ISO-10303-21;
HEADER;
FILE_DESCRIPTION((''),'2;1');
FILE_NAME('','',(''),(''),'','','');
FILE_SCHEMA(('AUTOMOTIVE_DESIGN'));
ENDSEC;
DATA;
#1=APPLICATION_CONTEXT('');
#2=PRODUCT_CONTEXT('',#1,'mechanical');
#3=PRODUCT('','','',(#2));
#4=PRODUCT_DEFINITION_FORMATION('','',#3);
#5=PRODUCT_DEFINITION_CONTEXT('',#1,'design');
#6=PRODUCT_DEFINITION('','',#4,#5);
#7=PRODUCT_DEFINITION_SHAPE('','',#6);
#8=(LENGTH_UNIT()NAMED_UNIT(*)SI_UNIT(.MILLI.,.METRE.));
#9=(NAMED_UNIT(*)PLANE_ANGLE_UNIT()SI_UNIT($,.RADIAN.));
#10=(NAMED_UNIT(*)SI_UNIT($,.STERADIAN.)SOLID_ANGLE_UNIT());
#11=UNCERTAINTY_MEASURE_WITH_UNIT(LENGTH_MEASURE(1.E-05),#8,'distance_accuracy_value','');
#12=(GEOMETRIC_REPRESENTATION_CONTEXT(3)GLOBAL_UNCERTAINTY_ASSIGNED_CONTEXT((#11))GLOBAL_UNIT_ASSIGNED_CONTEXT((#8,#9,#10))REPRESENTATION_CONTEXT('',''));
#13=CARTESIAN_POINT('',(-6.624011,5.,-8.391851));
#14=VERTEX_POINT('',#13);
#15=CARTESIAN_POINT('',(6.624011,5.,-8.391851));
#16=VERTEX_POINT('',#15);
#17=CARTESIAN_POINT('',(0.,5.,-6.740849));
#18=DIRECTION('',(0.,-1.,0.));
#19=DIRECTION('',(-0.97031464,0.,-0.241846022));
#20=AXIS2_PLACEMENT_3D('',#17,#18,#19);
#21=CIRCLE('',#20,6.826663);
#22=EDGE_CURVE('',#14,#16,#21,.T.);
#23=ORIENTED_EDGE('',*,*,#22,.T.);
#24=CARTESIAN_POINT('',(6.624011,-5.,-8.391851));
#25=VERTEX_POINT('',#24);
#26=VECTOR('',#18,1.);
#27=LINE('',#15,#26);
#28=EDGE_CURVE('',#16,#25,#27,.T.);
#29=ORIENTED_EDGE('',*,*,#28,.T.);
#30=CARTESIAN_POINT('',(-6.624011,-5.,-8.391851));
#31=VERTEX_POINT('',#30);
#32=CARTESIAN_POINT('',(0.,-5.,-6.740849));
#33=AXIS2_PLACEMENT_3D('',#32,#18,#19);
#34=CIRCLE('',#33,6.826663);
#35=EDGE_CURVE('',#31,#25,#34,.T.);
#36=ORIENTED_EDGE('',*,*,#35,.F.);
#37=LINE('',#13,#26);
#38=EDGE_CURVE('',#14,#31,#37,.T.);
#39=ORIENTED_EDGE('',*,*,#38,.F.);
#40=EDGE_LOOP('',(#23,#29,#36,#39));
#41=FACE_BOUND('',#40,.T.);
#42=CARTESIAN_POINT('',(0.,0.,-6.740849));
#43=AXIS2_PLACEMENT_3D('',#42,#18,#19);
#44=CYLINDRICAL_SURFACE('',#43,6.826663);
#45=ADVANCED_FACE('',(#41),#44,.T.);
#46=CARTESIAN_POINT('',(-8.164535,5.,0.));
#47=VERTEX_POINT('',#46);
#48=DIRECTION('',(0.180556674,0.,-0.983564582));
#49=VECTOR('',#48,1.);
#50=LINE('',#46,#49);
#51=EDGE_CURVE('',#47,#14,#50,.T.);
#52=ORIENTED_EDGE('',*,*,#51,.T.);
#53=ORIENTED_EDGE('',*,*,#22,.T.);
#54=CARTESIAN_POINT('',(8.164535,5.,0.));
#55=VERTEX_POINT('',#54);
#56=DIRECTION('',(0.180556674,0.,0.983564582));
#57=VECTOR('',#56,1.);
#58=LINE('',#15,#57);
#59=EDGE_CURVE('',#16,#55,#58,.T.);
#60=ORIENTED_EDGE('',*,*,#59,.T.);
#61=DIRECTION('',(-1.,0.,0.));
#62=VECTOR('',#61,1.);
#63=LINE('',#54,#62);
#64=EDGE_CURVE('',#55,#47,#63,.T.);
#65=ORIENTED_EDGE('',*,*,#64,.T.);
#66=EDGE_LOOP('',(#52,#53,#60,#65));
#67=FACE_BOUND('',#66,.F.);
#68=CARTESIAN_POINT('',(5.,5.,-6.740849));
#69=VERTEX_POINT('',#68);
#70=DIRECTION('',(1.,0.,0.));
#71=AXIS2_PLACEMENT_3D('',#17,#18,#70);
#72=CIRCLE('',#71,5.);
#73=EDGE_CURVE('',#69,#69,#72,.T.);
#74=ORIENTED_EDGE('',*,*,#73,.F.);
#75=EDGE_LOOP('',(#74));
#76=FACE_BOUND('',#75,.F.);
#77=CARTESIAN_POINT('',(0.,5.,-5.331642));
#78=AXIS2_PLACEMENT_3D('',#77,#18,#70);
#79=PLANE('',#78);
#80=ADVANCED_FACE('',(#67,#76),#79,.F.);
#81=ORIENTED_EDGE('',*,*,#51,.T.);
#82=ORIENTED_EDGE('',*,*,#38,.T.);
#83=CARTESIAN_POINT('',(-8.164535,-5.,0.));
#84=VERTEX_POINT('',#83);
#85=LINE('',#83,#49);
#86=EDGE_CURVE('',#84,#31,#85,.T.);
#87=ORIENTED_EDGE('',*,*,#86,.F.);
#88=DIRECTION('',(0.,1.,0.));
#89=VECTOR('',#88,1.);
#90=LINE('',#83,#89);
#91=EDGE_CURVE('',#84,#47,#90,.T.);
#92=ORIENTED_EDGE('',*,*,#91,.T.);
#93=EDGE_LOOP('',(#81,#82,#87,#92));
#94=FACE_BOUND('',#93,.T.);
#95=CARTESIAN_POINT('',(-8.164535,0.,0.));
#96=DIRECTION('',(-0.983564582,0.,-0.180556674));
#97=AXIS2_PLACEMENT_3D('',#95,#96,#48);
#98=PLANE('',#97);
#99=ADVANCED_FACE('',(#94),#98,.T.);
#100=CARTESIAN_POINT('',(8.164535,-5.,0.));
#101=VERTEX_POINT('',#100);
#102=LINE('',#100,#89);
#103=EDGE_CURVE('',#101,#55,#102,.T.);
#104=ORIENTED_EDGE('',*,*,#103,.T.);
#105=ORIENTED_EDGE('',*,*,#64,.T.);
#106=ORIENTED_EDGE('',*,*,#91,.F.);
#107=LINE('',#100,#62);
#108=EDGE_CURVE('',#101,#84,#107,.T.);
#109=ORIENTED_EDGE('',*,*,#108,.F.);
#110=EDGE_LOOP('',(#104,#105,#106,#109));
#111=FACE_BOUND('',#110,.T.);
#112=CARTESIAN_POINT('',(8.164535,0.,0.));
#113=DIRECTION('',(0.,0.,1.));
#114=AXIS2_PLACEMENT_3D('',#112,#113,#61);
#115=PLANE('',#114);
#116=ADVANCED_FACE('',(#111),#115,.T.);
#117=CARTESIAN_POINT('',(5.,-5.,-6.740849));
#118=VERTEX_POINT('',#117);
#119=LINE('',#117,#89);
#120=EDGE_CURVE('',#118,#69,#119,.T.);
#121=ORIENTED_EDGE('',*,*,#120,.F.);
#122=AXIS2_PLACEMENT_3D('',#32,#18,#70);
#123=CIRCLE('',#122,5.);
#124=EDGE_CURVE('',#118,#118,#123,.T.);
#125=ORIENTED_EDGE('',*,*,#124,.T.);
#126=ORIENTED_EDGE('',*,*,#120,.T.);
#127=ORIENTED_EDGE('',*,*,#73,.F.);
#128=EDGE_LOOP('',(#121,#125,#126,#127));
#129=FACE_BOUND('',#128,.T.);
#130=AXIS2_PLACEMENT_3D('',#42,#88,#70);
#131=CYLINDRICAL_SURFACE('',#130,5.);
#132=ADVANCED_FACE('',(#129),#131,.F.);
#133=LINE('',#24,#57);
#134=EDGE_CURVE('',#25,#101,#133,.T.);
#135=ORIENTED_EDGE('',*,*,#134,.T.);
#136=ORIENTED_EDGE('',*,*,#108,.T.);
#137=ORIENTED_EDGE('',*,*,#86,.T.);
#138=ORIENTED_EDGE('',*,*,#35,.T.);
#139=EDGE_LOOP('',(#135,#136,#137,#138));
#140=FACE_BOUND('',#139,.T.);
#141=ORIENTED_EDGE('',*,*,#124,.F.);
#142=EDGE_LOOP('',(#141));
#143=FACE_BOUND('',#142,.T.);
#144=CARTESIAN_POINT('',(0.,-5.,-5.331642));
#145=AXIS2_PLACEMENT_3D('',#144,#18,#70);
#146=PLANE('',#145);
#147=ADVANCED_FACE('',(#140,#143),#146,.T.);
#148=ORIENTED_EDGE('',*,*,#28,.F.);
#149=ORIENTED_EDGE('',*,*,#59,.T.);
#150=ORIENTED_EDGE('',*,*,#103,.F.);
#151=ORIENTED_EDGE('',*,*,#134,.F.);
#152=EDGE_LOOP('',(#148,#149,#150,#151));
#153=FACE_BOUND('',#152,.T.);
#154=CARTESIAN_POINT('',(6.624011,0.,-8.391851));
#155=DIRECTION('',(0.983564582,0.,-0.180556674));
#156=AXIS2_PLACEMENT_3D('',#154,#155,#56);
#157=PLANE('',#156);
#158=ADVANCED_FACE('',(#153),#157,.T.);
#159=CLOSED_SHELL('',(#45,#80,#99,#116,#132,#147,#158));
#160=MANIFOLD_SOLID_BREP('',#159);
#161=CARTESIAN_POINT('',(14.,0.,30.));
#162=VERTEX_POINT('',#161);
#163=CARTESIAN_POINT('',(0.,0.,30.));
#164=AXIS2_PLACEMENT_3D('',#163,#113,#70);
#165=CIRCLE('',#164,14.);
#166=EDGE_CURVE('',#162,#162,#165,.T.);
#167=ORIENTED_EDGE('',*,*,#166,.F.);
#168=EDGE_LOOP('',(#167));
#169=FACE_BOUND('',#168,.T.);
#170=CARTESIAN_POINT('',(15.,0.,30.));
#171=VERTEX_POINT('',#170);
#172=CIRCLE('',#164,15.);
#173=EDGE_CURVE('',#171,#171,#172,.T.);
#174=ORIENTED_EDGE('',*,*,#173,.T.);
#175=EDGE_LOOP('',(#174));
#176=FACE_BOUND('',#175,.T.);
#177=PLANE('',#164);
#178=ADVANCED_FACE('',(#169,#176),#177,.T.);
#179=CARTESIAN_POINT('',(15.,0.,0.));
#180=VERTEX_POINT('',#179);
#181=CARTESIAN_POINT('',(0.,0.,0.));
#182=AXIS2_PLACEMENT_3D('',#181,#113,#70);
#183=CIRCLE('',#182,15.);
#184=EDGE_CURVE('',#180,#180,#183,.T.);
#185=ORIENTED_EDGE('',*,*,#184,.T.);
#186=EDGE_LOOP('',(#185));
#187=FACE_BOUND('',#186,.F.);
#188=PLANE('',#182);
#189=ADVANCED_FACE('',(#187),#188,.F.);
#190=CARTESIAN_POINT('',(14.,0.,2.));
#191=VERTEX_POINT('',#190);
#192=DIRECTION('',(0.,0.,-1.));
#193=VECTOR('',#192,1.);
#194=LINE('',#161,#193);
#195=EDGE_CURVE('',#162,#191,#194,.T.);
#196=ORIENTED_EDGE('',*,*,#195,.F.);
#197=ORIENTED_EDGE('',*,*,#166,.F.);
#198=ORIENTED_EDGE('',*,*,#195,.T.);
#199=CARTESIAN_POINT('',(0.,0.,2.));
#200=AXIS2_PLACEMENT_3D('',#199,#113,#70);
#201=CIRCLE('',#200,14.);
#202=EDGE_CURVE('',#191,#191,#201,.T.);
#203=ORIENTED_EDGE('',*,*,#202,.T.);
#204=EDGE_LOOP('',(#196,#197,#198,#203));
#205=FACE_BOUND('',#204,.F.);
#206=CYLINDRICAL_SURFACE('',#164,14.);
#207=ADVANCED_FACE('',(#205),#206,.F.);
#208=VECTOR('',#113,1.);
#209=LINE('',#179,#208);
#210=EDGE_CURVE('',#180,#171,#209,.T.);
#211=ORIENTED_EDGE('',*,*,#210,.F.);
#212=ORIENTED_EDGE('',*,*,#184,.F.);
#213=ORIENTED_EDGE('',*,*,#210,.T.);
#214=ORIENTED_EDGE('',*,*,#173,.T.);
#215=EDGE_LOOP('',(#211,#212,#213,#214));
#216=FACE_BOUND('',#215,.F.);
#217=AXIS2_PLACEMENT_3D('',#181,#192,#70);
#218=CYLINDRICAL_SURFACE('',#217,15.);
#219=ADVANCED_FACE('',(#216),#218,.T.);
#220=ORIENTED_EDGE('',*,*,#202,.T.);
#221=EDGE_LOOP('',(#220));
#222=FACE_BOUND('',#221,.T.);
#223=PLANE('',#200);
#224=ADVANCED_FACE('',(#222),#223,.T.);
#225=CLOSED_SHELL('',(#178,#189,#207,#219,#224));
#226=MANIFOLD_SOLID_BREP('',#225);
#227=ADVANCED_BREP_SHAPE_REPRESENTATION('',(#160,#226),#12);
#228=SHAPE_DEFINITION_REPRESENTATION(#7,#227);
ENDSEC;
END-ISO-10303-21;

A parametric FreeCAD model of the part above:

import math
import FreeCAD as App
import Part
import Sketcher

doc = App.newDocument("Part")
params = doc.addObject("Spreadsheet::Sheet", "Params")
for row, (alias, value) in enumerate([
    ("sketch1_diameter", "30 mm"),
    ("pad1_length", "30 mm"),
    ("sketch2_diameter", "28 mm"),
    ("pocket1_length", "28 mm"),
    ("sketch3_diameter", "10 mm"),
    ("pad2_length", "10 mm"),
], start=1):
    params.set(f"A{row}", alias)
    params.set(f"B{row}", "=" + value)
    params.setAlias(f"B{row}", alias)

body = doc.addObject("PartDesign::Body", "Body")

# Sketch on XY plane
sketch1 = body.newObject("Sketcher::SketchObject", "Sketch")
sketch1.AttachmentSupport = (doc.getObject("XY_Plane"), [""])
sketch1.MapMode = "FlatFace"
sketch1.addGeometry(Part.Circle(App.Vector(0, 0, 0), App.Vector(0, 0, 1), 15), False)
sketch1.addConstraint([
    Sketcher.Constraint("Coincident", 0, 3, -1, 1),
    Sketcher.Constraint("Diameter", 0, 30.0),
])
sketch1.setExpression("Constraints[1]", "Params.sketch1_diameter")
pad1 = body.newObject("PartDesign::Pad", "Pad")
pad1.Profile = sketch1
pad1.setExpression("Length", "Params.pad1_length")

# Sketch on XY plane
sketch2 = body.newObject("Sketcher::SketchObject", "Sketch001")
sketch2.AttachmentSupport = (doc.getObject("XY_Plane"), [""])
sketch2.MapMode = "FlatFace"
sketch2.AttachmentOffset = App.Placement(App.Vector(0, 0, 30), App.Rotation())
sketch2.addGeometry(Part.Circle(App.Vector(0, 0, 0), App.Vector(0, 0, 1), 14), False)
sketch2.addConstraint([
    Sketcher.Constraint("Coincident", 0, 3, -1, 1),
    Sketcher.Constraint("Diameter", 0, 28.0),
])
sketch2.setExpression("Constraints[1]", "Params.sketch2_diameter")
pocket1 = body.newObject("PartDesign::Pocket", "Pocket")
pocket1.Profile = sketch2
pocket1.setExpression("Length", "Params.pocket1_length")
body2 = doc.addObject("PartDesign::Body", "Body001")

# Sketch on XZ plane
sketch3 = body2.newObject("Sketcher::SketchObject", "Sketch002")
sketch3.AttachmentSupport = (doc.getObject("XZ_Plane001"), [""])
sketch3.MapMode = "FlatFace"
sketch3.addGeometry([
    Part.LineSegment(App.Vector(-8, 0, 0), App.Vector(-7, -8, 0)),  # 0
    Part.ArcOfCircle(Part.Circle(App.Vector(0, -7, 0), App.Vector(0, 0, 1), 7), math.radians(-166), math.radians(-14)),  # 1
    Part.LineSegment(App.Vector(7, -8, 0), App.Vector(8, 0, 0)),  # 2
    Part.LineSegment(App.Vector(8, 0, 0), App.Vector(-8, 0, 0)),  # 3
    Part.Circle(App.Vector(0, -7, 0), App.Vector(0, 0, 1), 5),  # 4
], False)
sketch3.addConstraint([
    Sketcher.Constraint("Coincident", 0, 2, 1, 1),
    Sketcher.Constraint("Coincident", 1, 2, 2, 1),
    Sketcher.Constraint("Coincident", 2, 2, 3, 1),
    Sketcher.Constraint("Coincident", 3, 2, 0, 1),
    Sketcher.Constraint("Horizontal", 3),
    Sketcher.Constraint("Coincident", 4, 3, 1, 3),
    Sketcher.Constraint("Symmetric", 2, 2, 3, 2, -1, 1),
    Sketcher.Constraint("Symmetric", 0, 2, 1, 2, -2),
    Sketcher.Constraint("Diameter", 4, 10.0),
    Sketcher.Constraint("Radius", 1, 6.826663),
    Sketcher.Constraint("DistanceY", 0, 2, 1, 3, 1.651001),
    Sketcher.Constraint("DistanceX", 3, 2, 3, 1, 16.32907),
    Sketcher.Constraint("Distance", 0, 8.532079),
])
sketch3.setExpression("Constraints[8]", "Params.sketch3_diameter")
pad2 = body2.newObject("PartDesign::Pad", "Pad001")
pad2.Profile = sketch3
pad2.setExpression("Length", "Params.pad2_length")
pad2.Midplane = True

doc.recompute()
